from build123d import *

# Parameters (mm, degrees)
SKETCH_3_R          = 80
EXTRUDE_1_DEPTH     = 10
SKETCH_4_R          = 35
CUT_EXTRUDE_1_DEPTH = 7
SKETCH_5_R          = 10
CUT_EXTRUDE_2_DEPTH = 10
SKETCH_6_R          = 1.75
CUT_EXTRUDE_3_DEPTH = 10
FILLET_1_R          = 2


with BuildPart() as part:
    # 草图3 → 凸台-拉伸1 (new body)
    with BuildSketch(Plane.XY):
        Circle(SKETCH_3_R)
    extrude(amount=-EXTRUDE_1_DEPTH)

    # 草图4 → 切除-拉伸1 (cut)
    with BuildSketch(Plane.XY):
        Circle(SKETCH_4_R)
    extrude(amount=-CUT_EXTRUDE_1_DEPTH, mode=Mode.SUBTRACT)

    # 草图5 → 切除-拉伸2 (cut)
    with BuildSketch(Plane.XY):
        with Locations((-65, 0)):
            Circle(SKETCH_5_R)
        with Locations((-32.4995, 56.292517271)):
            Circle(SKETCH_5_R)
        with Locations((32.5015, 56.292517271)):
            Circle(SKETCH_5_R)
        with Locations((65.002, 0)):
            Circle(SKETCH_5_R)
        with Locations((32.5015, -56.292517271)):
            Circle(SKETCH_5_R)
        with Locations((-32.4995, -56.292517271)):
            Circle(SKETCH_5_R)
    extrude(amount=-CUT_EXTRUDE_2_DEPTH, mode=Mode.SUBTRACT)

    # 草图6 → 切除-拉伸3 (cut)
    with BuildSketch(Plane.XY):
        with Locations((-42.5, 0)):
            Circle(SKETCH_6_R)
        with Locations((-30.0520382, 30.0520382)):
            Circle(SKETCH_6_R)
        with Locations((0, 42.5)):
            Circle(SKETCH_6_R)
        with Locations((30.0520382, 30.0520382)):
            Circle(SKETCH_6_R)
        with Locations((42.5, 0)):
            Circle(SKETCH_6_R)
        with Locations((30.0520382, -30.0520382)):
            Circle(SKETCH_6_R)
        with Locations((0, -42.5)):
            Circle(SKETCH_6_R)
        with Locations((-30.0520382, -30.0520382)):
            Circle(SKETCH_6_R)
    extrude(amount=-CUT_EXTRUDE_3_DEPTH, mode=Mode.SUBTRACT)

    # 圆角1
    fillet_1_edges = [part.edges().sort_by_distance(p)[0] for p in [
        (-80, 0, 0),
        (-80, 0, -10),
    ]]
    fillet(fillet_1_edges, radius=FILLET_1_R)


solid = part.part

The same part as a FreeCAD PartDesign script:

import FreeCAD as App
import Part
import Sketcher
Q = App.Units.Quantity


def edges_at(feature, points):
    """Names of the edges that pass closest to the given points."""
    edges = feature.Shape.Edges
    near = lambda p: min(range(len(edges)), key=lambda i: edges[i].distToShape(Part.Vertex(*p))[0])
    return sorted({f"Edge{near(p) + 1}" for p in points})

doc = App.newDocument("Part")
body = doc.addObject("PartDesign::Body", "Body")

# Sketch on XY plane
sketch1 = body.newObject("Sketcher::SketchObject", "Sketch")
sketch1.AttachmentSupport = (doc.getObject("XY_Plane"), [""])
sketch1.MapMode = "FlatFace"
sketch1.addGeometry(Part.Circle(App.Vector(0, 0, 0), App.Vector(0, 0, 1), 80), False)
sketch1.addConstraint([
    Sketcher.Constraint("Coincident", 0, 3, -1, 1),
    Sketcher.Constraint("Diameter", 0, Q("160 mm")),
])
pad1 = body.newObject("PartDesign::Pad", "Pad")
pad1.Profile = sketch1
pad1.Length = 10
pad1.Reversed = True

# Sketch on XY plane
sketch2 = body.newObject("Sketcher::SketchObject", "Sketch001")
sketch2.AttachmentSupport = (doc.getObject("XY_Plane"), [""])
sketch2.MapMode = "FlatFace"
sketch2.addGeometry(Part.Circle(App.Vector(0, 0, 0), App.Vector(0, 0, 1), 35), False)
sketch2.addConstraint([
    Sketcher.Constraint("Coincident", 0, 3, -1, 1),
    Sketcher.Constraint("Diameter", 0, Q("70 mm")),
])
pocket1 = body.newObject("PartDesign::Pocket", "Pocket")
pocket1.Profile = sketch2
pocket1.Length = 7

# Sketch on XY plane
sketch3 = body.newObject("Sketcher::SketchObject", "Sketch002")
sketch3.AttachmentSupport = (doc.getObject("XY_Plane"), [""])
sketch3.MapMode = "FlatFace"
sketch3.addGeometry([
    Part.Circle(App.Vector(-65, 0, 0), App.Vector(0, 0, 1), 10),  # 0
    Part.Circle(App.Vector(-32, 56, 0), App.Vector(0, 0, 1), 10),  # 1
    Part.Circle(App.Vector(33, 56, 0), App.Vector(0, 0, 1), 10),  # 2
    Part.Circle(App.Vector(65, 0, 0), App.Vector(0, 0, 1), 10),  # 3
    Part.Circle(App.Vector(33, -56, 0), App.Vector(0, 0, 1), 10),  # 4
    Part.Circle(App.Vector(-32, -56, 0), App.Vector(0, 0, 1), 10),  # 5
], False)
sketch3.addConstraint([
    Sketcher.Constraint("Equal", 0, 1),
    Sketcher.Constraint("Equal", 1, 2),
    Sketcher.Constraint("Equal", 2, 3),
    Sketcher.Constraint("Equal", 3, 4),
    Sketcher.Constraint("Equal", 4, 5),
    Sketcher.Constraint("Symmetric", 2, 3, 4, 3, -1),
    Sketcher.Constraint("Symmetric", 1, 3, 5, 3, -1),
    Sketcher.Constraint("PointOnObject", 0, 3, -1),
    Sketcher.Constraint("PointOnObject", 3, 3, -1),
    Sketcher.Constraint("Horizontal", 1, 3, 2, 3),
    Sketcher.Constraint("Diameter", 0, Q("20 mm")),
    Sketcher.Constraint("DistanceX", 0, 3, -1, 1, Q("65 mm")),
    Sketcher.Constraint("DistanceX", -1, 1, 3, 3, Q("65.002 mm")),
    Sketcher.Constraint("DistanceX", 1, 3, 2, 3, Q("65.001 mm")),
    Sketcher.Constraint("DistanceX", 1, 3, -1, 1, Q("32.4995 mm")),
    Sketcher.Constraint("DistanceY", -1, 1, 1, 3, Q("56.292517 mm")),
])
pocket2 = body.newObject("PartDesign::Pocket", "Pocket001")
pocket2.Profile = sketch3
pocket2.Length = 10

# Sketch on XY plane
sketch4 = body.newObject("Sketcher::SketchObject", "Sketch003")
sketch4.AttachmentSupport = (doc.getObject("XY_Plane"), [""])
sketch4.MapMode = "FlatFace"
sketch4.addGeometry([
    Part.Circle(App.Vector(-42.5, 0, 0), App.Vector(0, 0, 1), 1.8),  # 0
    Part.Circle(App.Vector(-30.1, 30.1, 0), App.Vector(0, 0, 1), 1.8),  # 1
    Part.Circle(App.Vector(0, 42.5, 0), App.Vector(0, 0, 1), 1.8),  # 2
    Part.Circle(App.Vector(30.1, 30.1, 0), App.Vector(0, 0, 1), 1.8),  # 3
    Part.Circle(App.Vector(42.5, 0, 0), App.Vector(0, 0, 1), 1.8),  # 4
    Part.Circle(App.Vector(30.1, -30.1, 0), App.Vector(0, 0, 1), 1.8),  # 5
    Part.Circle(App.Vector(0, -42.5, 0), App.Vector(0, 0, 1), 1.8),  # 6
    Part.Circle(App.Vector(-30.1, -30.1, 0), App.Vector(0, 0, 1), 1.8),  # 7
], False)
sketch4.addConstraint([
    Sketcher.Constraint("Equal", 0, 1),
    Sketcher.Constraint("Equal", 1, 2),
    Sketcher.Constraint("Equal", 2, 3),
    Sketcher.Constraint("Equal", 3, 4),
    Sketcher.Constraint("Equal", 4, 5),
    Sketcher.Constraint("Equal", 5, 6),
    Sketcher.Constraint("Equal", 6, 7),
    Sketcher.Constraint("Symmetric", 0, 3, 4, 3, -1, 1),
    Sketcher.Constraint("Symmetric", 1, 3, 5, 3, -1, 1),
    Sketcher.Constraint("Symmetric", 2, 3, 6, 3, -1, 1),
    Sketcher.Constraint("Symmetric", 3, 3, 7, 3, -1, 1),
    Sketcher.Constraint("Symmetric", 1, 3, 3, 3, -2),
    Sketcher.Constraint("PointOnObject", 0, 3, -1),
    Sketcher.Constraint("PointOnObject", 2, 3, -2),
    Sketcher.Constraint("Diameter", 0, Q("3.5 mm")),
    Sketcher.Constraint("DistanceX", 0, 3, 4, 3, Q("85 mm")),
    Sketcher.Constraint("DistanceY", -1, 1, 2, 3, Q("42.5 mm")),
    Sketcher.Constraint("DistanceX", 1, 3, -1, 1, Q("30.052038 mm")),
    Sketcher.Constraint("DistanceY", -1, 1, 1, 3, Q("30.052038 mm")),
])
pocket3 = body.newObject("PartDesign::Pocket", "Pocket002")
pocket3.Profile = sketch4
pocket3.Length = 10
doc.recompute()

fillet = body.newObject("PartDesign::Fillet", "Fillet")
fillet.Base = (pocket3, edges_at(pocket3, [(-80, 0, 0), (-80, 0, -10)]))
fillet.Radius = 2

doc.recompute()
